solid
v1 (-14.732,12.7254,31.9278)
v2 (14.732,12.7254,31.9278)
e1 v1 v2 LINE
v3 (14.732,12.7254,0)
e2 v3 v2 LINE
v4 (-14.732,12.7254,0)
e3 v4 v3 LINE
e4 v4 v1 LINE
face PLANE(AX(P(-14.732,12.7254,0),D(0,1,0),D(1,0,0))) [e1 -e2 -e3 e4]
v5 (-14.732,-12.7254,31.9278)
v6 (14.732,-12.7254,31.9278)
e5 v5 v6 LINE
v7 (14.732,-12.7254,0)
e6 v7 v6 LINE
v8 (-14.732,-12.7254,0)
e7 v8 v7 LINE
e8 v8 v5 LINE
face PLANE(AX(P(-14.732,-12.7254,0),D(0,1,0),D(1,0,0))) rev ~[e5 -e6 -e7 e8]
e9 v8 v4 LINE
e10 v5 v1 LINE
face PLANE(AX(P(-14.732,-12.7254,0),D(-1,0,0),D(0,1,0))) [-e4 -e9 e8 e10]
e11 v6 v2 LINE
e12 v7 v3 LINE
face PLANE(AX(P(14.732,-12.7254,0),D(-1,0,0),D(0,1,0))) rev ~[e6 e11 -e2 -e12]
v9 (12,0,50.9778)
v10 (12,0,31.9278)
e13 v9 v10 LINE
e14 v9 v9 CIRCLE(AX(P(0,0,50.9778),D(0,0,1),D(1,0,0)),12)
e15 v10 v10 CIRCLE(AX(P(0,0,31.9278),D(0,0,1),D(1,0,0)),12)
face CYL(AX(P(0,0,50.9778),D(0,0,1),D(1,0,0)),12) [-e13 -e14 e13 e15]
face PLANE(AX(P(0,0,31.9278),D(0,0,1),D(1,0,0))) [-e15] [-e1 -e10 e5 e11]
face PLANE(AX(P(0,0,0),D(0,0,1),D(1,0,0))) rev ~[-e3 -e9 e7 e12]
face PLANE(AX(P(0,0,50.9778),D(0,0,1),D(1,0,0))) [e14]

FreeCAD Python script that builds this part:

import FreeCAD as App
import Part
import Sketcher

V = App.Vector
Q = App.Units.Quantity

doc = App.newDocument("Part")
body = doc.addObject("PartDesign::Body", "Body")

# Sketch on XY plane
sketch1 = body.newObject("Sketcher::SketchObject", "Sketch")
sketch1.AttachmentSupport = (doc.getObject("XY_Plane"), [""])
sketch1.MapMode = "FlatFace"
sketch1.addGeometry([
    Part.LineSegment(V(-15, 13, 0), V(-15, -13, 0)),
    Part.LineSegment(V(-15, -13, 0), V(15, -13, 0)),
    Part.LineSegment(V(15, -13, 0), V(15, 13, 0)),
    Part.LineSegment(V(15, 13, 0), V(-15, 13, 0)),
], False)
sketch1.addConstraint([
    Sketcher.Constraint("Coincident", 0, 2, 1, 1),
    Sketcher.Constraint("Coincident", 1, 2, 2, 1),
    Sketcher.Constraint("Coincident", 2, 2, 3, 1),
    Sketcher.Constraint("Coincident", 3, 2, 0, 1),
    Sketcher.Constraint("Vertical", 0),
    Sketcher.Constraint("Horizontal", 1),
    Sketcher.Constraint("Vertical", 2),
    Sketcher.Constraint("Horizontal", 3),
    Sketcher.Constraint("Symmetric", 0, 2, 2, 2, -1, 1),
    Sketcher.Constraint("DistanceX", 1, 1, 1, 2, Q("1.16 in")),
    Sketcher.Constraint("DistanceY", 0, 2, 0, 1, Q("1.002 in")),
])
pad1 = body.newObject("PartDesign::Pad", "Pad")
pad1.Profile = sketch1
pad1.Length = Q("2.007 in")

# Sketch on XY plane
sketch2 = body.newObject("Sketcher::SketchObject", "Sketch001")
sketch2.AttachmentSupport = (doc.getObject("XY_Plane"), [""])
sketch2.MapMode = "FlatFace"
sketch2.AttachmentOffset = App.Placement(V(0, 0, 2.007 * 25.4), App.Rotation())
sketch2.addGeometry([
    Part.LineSegment(V(-20, 18, 0), V(-20, -18, 0)),  # 0
    Part.LineSegment(V(-20, -18, 0), V(20, -18, 0)),  # 1
    Part.LineSegment(V(20, -18, 0), V(20, 18, 0)),  # 2
    Part.LineSegment(V(20, 18, 0), V(-20, 18, 0)),  # 3
    Part.Circle(V(0, 0, 0), V(0, 0, 1), 12),  # 4
], False)
sketch2.addConstraint([
    Sketcher.Constraint("Coincident", 0, 2, 1, 1),
    Sketcher.Constraint("Coincident", 1, 2, 2, 1),
    Sketcher.Constraint("Coincident", 2, 2, 3, 1),
    Sketcher.Constraint("Coincident", 3, 2, 0, 1),
    Sketcher.Constraint("Vertical", 0),
    Sketcher.Constraint("Horizontal", 1),
    Sketcher.Constraint("Vertical", 2),
    Sketcher.Constraint("Horizontal", 3),
    Sketcher.Constraint("Coincident", 4, 3, -1, 1),
    Sketcher.Constraint("Symmetric", 0, 2, 2, 2, -1, 1),
    Sketcher.Constraint("Diameter", 4, 24.0),
    Sketcher.Constraint("DistanceX", 1, 1, 1, 2, 39.90591),
    Sketcher.Constraint("DistanceY", 0, 2, 0, 1, 36.580414),
])
pocket1 = body.newObject("PartDesign::Pocket", "Pocket")
pocket1.Profile = sketch2
pocket1.Length = Q("0.75 in")

doc.recompute()
